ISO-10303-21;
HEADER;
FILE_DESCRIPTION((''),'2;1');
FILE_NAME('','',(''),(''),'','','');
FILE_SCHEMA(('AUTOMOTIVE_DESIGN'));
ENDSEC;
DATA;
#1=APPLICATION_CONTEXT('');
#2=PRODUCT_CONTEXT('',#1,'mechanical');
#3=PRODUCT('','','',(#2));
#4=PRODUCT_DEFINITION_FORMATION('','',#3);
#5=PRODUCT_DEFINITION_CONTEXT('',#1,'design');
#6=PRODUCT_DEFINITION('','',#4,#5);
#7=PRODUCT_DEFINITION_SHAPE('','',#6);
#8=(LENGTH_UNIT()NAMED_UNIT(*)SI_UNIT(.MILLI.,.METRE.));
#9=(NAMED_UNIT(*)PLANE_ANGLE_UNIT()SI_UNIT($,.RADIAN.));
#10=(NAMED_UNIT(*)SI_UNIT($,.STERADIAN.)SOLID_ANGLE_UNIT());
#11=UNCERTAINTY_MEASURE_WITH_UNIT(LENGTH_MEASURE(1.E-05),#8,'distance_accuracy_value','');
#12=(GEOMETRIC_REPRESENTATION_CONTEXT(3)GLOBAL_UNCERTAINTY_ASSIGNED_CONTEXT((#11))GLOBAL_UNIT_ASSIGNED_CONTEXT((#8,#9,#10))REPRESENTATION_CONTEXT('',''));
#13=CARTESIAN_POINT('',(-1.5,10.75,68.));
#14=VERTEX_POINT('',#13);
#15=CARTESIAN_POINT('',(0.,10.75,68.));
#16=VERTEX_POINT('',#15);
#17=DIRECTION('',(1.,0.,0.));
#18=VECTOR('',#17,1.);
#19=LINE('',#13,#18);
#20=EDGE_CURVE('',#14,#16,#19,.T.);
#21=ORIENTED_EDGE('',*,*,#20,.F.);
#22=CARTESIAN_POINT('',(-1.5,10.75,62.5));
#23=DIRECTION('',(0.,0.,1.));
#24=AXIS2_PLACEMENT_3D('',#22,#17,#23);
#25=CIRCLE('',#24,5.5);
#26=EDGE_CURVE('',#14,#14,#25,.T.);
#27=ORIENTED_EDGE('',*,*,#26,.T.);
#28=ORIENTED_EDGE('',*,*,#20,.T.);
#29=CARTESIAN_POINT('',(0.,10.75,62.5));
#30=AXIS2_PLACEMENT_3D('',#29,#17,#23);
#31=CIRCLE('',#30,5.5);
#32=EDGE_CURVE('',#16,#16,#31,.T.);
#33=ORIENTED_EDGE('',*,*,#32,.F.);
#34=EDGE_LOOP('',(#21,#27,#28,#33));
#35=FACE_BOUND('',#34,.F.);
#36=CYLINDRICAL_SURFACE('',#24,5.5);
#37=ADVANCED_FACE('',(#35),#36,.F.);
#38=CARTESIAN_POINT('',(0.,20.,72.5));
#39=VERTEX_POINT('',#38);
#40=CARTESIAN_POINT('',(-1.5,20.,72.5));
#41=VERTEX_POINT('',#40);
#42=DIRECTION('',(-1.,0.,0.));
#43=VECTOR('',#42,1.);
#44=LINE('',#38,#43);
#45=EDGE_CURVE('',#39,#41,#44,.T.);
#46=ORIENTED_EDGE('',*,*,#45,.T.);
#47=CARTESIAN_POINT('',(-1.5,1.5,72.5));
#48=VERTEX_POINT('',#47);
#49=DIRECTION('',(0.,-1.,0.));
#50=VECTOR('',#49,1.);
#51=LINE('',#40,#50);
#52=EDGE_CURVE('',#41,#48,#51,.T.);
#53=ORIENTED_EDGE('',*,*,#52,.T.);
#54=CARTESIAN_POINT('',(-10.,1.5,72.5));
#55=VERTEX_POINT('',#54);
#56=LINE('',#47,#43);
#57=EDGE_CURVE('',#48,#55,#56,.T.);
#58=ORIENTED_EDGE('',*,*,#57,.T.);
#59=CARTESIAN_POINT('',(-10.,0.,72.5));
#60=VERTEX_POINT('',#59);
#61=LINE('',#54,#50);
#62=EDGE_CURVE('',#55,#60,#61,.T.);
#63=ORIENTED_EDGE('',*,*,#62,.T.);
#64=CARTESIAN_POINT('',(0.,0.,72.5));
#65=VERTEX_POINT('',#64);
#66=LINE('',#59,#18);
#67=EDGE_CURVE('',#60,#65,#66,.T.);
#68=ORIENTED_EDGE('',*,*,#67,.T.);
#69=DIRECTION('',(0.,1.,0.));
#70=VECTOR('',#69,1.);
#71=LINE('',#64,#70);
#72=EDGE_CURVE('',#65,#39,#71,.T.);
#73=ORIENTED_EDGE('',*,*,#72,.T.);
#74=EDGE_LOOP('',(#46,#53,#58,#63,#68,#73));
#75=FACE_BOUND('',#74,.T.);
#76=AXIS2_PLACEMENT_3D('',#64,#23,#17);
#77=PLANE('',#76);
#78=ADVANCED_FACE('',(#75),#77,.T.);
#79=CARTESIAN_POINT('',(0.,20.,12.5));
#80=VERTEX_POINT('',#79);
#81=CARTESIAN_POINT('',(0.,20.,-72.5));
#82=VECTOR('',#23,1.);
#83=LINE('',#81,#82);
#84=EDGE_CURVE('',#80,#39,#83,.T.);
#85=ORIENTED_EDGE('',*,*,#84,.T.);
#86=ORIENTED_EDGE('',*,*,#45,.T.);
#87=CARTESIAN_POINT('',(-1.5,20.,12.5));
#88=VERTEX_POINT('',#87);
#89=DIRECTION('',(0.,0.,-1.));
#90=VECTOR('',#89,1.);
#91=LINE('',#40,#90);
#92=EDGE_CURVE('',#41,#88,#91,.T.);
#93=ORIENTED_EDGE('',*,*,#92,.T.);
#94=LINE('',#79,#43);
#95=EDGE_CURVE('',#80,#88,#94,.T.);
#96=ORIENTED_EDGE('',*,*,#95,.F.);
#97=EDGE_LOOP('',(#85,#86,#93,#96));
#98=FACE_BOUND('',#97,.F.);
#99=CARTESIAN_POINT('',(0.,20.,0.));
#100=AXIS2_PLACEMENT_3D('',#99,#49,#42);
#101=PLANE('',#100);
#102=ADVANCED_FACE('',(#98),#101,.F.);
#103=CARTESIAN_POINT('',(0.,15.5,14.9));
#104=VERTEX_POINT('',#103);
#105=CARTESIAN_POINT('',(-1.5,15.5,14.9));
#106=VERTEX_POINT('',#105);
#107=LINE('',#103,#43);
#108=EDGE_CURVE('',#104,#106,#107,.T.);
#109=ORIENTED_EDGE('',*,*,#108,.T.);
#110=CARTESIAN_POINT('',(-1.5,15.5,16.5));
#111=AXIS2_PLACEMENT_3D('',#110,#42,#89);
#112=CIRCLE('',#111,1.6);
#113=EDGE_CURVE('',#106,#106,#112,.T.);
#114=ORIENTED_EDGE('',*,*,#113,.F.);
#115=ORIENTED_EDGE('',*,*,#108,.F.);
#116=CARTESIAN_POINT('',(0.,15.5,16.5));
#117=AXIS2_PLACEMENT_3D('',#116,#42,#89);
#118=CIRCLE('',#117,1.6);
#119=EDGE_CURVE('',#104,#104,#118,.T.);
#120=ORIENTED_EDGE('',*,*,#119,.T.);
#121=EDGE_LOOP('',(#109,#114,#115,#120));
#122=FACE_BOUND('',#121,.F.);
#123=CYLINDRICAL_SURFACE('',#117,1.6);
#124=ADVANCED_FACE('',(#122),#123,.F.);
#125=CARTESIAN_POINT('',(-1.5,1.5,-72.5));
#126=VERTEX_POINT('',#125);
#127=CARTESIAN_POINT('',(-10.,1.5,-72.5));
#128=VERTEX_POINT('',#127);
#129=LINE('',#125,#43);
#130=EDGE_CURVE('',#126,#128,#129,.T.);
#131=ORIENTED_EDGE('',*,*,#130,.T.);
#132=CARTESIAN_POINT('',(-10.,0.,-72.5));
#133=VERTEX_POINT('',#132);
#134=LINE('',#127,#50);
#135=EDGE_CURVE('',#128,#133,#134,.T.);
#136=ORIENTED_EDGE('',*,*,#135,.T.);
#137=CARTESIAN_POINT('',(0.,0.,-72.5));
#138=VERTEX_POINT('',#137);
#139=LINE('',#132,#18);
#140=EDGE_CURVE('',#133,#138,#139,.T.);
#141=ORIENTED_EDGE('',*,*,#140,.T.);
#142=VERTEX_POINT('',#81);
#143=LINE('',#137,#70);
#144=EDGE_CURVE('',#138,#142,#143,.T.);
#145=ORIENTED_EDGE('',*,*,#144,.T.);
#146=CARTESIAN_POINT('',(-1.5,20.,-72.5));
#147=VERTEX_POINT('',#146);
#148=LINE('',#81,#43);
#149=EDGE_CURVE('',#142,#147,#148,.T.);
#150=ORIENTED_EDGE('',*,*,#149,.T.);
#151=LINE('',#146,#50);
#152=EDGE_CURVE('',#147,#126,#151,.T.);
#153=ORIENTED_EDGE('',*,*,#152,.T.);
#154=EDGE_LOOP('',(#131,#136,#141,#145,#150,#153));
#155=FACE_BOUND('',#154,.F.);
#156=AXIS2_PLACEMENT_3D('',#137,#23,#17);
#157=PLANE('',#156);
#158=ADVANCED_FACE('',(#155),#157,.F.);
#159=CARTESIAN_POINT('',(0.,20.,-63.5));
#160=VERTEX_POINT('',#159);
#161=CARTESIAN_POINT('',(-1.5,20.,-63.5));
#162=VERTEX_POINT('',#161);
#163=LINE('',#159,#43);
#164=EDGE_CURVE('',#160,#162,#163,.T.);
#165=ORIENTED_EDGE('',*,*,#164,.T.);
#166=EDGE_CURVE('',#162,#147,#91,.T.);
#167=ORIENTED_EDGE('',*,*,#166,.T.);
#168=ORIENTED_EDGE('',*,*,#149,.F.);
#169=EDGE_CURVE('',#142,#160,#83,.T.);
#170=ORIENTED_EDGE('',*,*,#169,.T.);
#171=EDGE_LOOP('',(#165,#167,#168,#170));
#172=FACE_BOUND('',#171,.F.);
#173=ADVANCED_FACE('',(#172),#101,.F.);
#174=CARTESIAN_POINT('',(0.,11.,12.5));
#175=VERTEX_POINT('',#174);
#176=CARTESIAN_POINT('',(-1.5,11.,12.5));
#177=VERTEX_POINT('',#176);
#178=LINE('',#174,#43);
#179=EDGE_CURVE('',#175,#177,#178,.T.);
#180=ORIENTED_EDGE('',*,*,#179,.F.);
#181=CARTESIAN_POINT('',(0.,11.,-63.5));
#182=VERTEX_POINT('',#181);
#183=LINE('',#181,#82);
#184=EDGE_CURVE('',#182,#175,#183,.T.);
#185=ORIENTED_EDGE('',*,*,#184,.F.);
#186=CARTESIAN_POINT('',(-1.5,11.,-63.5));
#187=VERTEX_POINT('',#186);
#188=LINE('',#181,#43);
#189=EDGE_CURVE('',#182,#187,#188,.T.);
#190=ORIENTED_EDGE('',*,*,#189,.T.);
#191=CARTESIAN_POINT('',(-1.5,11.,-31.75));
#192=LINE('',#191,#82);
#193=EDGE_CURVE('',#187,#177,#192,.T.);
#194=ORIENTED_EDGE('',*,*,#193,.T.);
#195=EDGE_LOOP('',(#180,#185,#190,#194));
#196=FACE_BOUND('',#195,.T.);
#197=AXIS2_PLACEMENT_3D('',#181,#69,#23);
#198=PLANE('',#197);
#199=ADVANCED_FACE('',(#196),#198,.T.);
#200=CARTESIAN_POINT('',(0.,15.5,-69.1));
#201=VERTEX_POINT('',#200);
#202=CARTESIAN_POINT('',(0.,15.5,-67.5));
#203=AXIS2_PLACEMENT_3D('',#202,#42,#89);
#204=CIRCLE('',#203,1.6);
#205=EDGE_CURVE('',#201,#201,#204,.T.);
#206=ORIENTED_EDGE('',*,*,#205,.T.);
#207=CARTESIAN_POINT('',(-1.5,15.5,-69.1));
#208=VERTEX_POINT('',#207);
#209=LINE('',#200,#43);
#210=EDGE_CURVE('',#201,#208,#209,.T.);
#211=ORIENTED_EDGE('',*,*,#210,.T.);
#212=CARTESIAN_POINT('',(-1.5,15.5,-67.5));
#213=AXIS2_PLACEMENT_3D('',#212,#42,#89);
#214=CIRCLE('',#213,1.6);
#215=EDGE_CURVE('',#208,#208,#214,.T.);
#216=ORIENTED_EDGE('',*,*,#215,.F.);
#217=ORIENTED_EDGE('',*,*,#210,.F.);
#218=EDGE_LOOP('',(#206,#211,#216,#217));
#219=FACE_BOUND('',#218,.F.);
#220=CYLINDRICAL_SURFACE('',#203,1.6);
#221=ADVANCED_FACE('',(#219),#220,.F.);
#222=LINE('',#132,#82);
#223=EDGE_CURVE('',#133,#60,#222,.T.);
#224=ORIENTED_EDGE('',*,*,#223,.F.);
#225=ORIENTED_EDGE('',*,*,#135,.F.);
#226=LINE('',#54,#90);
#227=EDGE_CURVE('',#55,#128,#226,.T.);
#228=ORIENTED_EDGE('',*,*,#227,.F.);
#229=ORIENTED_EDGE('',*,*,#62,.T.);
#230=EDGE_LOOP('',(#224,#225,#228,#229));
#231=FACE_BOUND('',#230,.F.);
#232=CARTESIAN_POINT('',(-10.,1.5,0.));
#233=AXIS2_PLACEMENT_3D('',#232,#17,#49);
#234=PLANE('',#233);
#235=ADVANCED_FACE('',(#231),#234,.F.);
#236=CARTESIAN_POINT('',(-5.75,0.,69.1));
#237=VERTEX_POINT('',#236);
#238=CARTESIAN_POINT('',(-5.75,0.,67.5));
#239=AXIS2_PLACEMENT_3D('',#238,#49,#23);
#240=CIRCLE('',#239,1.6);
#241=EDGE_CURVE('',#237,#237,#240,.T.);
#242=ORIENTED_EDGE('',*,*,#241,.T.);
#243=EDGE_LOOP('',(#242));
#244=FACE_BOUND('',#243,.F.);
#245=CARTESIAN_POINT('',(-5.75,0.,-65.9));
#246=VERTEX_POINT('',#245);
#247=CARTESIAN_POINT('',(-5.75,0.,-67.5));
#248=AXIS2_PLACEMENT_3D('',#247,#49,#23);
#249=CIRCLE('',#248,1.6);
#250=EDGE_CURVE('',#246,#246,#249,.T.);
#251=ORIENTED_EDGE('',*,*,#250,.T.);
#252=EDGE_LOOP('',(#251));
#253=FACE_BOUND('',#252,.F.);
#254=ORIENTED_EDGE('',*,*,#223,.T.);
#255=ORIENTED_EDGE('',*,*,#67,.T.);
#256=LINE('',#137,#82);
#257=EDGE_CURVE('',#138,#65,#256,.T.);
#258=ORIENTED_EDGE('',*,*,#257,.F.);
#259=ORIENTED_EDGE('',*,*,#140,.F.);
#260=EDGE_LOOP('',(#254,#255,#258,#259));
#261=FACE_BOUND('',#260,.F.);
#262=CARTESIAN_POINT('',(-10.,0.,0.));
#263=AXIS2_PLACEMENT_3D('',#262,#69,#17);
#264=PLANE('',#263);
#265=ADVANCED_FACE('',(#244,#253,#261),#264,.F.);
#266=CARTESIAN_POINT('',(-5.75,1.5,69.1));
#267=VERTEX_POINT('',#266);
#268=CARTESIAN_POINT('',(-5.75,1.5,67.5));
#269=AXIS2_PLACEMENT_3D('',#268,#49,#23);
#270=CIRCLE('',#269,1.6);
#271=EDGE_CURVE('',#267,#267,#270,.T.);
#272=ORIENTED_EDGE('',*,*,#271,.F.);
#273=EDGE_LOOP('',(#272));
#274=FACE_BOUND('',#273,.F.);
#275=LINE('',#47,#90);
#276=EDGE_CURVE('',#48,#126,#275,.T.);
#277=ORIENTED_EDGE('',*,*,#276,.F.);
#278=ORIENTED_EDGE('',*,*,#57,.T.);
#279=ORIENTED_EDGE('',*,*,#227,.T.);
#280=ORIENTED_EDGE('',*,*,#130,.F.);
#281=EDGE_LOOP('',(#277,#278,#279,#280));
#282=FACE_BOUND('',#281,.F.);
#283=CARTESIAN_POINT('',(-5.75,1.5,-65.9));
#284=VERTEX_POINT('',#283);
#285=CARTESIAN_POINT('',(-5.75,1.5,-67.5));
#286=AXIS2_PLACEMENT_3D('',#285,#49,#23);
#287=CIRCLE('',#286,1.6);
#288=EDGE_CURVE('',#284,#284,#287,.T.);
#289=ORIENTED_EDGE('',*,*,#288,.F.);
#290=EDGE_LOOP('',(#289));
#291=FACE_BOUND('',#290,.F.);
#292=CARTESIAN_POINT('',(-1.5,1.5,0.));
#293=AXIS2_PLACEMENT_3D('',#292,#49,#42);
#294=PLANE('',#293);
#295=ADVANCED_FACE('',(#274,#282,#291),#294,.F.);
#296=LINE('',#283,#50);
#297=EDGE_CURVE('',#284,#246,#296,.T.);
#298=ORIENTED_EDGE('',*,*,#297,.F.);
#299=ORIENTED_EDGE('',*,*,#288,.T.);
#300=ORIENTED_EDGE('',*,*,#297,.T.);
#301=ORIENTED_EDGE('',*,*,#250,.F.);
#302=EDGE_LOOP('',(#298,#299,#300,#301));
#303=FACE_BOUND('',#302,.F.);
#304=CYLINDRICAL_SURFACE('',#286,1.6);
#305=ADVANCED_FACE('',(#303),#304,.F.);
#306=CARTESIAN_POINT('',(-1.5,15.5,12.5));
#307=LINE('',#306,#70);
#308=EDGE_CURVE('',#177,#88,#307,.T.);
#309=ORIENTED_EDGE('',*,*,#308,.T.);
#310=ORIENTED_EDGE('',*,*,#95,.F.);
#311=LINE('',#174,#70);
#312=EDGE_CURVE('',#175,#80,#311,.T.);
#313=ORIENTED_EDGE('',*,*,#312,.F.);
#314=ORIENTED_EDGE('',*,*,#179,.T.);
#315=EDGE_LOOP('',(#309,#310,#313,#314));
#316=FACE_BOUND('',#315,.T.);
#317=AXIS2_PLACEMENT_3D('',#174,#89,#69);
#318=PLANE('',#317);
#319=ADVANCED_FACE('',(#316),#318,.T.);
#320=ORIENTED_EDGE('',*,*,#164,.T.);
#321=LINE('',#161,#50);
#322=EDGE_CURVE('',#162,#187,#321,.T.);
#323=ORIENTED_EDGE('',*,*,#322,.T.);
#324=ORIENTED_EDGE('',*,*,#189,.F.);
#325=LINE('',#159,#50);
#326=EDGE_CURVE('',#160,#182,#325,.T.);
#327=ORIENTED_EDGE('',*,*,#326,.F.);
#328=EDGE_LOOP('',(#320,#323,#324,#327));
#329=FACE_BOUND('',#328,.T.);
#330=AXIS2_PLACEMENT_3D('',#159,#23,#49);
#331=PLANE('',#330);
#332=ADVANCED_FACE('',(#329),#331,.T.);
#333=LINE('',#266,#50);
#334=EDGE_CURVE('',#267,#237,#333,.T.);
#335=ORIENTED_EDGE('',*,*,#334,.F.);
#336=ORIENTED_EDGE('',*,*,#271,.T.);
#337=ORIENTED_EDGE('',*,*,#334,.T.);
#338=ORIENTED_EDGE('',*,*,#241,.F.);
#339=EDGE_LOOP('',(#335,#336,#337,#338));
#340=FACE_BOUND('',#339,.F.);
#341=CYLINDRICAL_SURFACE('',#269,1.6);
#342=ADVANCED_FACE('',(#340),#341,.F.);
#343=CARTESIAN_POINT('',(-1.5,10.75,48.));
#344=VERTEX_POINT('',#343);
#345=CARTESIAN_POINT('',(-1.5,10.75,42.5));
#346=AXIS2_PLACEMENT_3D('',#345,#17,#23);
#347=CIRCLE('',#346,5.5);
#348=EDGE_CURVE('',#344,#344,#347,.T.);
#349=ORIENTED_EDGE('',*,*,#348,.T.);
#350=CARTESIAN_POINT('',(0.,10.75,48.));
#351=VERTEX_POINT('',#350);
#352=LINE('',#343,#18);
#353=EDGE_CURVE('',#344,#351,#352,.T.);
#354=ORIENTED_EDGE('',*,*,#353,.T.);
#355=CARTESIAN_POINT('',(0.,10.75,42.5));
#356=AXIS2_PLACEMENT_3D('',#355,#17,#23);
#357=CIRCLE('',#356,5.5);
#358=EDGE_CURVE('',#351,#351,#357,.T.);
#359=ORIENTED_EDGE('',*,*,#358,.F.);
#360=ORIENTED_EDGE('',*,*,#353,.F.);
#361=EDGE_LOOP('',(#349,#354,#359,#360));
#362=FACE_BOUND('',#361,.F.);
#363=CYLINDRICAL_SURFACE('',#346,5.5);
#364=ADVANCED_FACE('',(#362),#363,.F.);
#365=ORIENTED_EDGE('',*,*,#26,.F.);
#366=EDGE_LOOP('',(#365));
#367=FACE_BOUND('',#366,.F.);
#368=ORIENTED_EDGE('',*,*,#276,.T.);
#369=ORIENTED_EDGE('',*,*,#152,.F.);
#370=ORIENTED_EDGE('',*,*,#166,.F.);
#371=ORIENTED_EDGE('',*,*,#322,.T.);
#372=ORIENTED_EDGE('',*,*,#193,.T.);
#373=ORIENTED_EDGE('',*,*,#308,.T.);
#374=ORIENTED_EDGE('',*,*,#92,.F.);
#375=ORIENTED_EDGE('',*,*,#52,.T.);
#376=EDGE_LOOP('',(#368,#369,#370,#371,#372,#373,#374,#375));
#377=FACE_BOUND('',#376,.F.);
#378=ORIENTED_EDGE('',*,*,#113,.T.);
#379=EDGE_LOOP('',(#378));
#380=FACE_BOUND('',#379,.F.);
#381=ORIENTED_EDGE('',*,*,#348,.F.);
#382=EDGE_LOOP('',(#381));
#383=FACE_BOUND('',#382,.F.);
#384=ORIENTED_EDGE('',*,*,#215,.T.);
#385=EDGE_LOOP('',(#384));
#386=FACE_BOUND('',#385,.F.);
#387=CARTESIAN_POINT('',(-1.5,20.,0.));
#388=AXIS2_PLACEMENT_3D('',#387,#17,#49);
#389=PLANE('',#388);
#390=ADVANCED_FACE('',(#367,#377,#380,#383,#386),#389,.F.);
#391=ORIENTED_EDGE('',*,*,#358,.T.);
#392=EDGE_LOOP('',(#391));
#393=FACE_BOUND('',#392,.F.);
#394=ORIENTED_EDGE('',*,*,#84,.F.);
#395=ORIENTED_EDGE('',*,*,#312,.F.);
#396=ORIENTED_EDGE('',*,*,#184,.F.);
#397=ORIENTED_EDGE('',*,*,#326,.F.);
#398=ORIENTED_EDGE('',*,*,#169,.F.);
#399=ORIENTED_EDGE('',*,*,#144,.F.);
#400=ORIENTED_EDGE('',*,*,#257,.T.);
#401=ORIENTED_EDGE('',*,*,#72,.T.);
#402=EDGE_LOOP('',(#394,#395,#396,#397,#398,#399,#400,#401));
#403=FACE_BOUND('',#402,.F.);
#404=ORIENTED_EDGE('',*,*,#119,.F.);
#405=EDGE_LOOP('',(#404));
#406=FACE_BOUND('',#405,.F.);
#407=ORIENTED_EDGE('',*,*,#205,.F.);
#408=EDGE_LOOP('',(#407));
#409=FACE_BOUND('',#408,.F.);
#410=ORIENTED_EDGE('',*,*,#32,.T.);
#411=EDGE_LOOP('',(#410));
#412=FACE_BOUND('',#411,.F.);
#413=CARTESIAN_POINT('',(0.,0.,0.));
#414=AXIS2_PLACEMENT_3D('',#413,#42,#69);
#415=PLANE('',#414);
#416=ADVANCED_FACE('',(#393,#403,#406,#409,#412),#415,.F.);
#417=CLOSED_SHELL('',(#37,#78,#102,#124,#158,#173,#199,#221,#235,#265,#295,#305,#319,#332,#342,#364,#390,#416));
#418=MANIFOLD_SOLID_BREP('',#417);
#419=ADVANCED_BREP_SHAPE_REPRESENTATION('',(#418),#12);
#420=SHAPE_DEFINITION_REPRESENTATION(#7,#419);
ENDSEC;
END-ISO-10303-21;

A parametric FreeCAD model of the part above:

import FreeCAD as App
import Part
import Sketcher
from FreeCAD import Vector
Q = App.Units.Quantity

doc = App.newDocument("Part")
body = doc.addObject("PartDesign::Body", "Body")

# Sketch on XY plane
sketch1 = body.newObject("Sketcher::SketchObject", "Sketch")
sketch1.AttachmentSupport = (doc.getObject("XY_Plane"), [""])
sketch1.MapMode = "FlatFace"
sketch1.addGeometry(Part.LineSegment(Vector(-10, 1.5, 0), Vector(-10, 0, 0)), False)
sketch1.addGeometry(Part.LineSegment(Vector(-10, 0, 0), Vector(0, 0, 0)), False)
sketch1.addGeometry(Part.LineSegment(Vector(0, 0, 0), Vector(0, 20, 0)), False)
sketch1.addGeometry(Part.LineSegment(Vector(0, 20, 0), Vector(-1.5, 20, 0)), False)
sketch1.addGeometry(Part.LineSegment(Vector(-1.5, 20, 0), Vector(-1.5, 1.5, 0)), False)
sketch1.addGeometry(Part.LineSegment(Vector(-1.5, 1.5, 0), Vector(-10, 1.5, 0)), False)
sketch1.addConstraint(Sketcher.Constraint("Coincident", 0, 2, 1, 1))
sketch1.addConstraint(Sketcher.Constraint("Coincident", 1, 2, 2, 1))
sketch1.addConstraint(Sketcher.Constraint("Coincident", 2, 2, 3, 1))
sketch1.addConstraint(Sketcher.Constraint("Coincident", 3, 2, 4, 1))
sketch1.addConstraint(Sketcher.Constraint("Coincident", 4, 2, 5, 1))
sketch1.addConstraint(Sketcher.Constraint("Coincident", 5, 2, 0, 1))
sketch1.addConstraint(Sketcher.Constraint("Vertical", 0))
sketch1.addConstraint(Sketcher.Constraint("Horizontal", 1))
sketch1.addConstraint(Sketcher.Constraint("Vertical", 2))
sketch1.addConstraint(Sketcher.Constraint("Horizontal", 3))
sketch1.addConstraint(Sketcher.Constraint("Vertical", 4))
sketch1.addConstraint(Sketcher.Constraint("Horizontal", 5))
sketch1.addConstraint(Sketcher.Constraint("Coincident", 1, 2, -1, 1))
sketch1.addConstraint(Sketcher.Constraint("Equal", 3, 0))
sketch1.addConstraint(Sketcher.Constraint("DistanceX", 1, 1, 1, 2, Q("10 mm")))
sketch1.addConstraint(Sketcher.Constraint("DistanceY", 2, 1, 2, 2, Q("20 mm")))
sketch1.addConstraint(Sketcher.Constraint("DistanceX", 3, 2, 3, 1, Q("1.5 mm")))
pad1 = body.newObject("PartDesign::Pad", "Pad")
pad1.Profile = sketch1
pad1.Length = 145
pad1.Midplane = True

# Sketch on XZ plane
sketch2 = body.newObject("Sketcher::SketchObject", "Sketch001")
sketch2.AttachmentSupport = (doc.getObject("XZ_Plane"), [""])
sketch2.MapMode = "FlatFace"
sketch2.AttachmentOffset = App.Placement(Vector(0, 0, -1.5), App.Rotation())
sketch2.addGeometry(Part.Circle(Vector(-5.8, -67.5, 0), Vector(0, 0, 1), 1.6), False)
sketch2.addGeometry(Part.Circle(Vector(-5.8, 67.5, 0), Vector(0, 0, 1), 1.6), False)
sketch2.addConstraint(Sketcher.Constraint("Equal", 0, 1))
sketch2.addConstraint(Sketcher.Constraint("Symmetric", 0, 3, 1, 3, -1))
sketch2.addConstraint(Sketcher.Constraint("Diameter", 0, Q("3.2 mm")))
sketch2.addConstraint(Sketcher.Constraint("DistanceY", 0, 3, 1, 3, Q("135 mm")))
sketch2.addConstraint(Sketcher.Constraint("DistanceX", 0, 3, -1, 1, Q("5.75 mm")))
doc.recompute()
hole = body.newObject("PartDesign::Hole", "Hole")
hole.Profile = sketch2
hole.ThreadType = "None"
hole.Diameter = 3.2
hole.DepthType = "ThroughAll"
hole.Reversed = True

# Sketch on YZ plane
sketch3 = body.newObject("Sketcher::SketchObject", "Sketch002")
sketch3.AttachmentSupport = (doc.getObject("YZ_Plane"), [""])
sketch3.MapMode = "FlatFace"
sketch3.AttachmentOffset = App.Placement(Vector(0, 0, -1.5), App.Rotation())
sketch3.addGeometry(Part.Circle(Vector(11, 62, 0), Vector(0, 0, 1), 6), False)
sketch3.addGeometry(Part.Circle(Vector(11, 42, 0), Vector(0, 0, 1), 6), False)
sketch3.addConstraint(Sketcher.Constraint("Equal", 0, 1))
sketch3.addConstraint(Sketcher.Constraint("Vertical", 0, 3, 1, 3))
sketch3.addConstraint(Sketcher.Constraint("Diameter", 0, Q("11 mm")))
sketch3.addConstraint(Sketcher.Constraint("DistanceY", 1, 3, 0, 3, Q("20 mm")))
sketch3.addConstraint(Sketcher.Constraint("DistanceY", -1, 1, 0, 3, Q("62.5 mm")))
sketch3.addConstraint(Sketcher.Constraint("DistanceX", -1, 1, 0, 3, Q("10.75 mm")))
doc.recompute()
hole2 = body.newObject("PartDesign::Hole", "Hole001")
hole2.Profile = sketch3
hole2.ThreadType = "None"
hole2.Diameter = 11
hole2.DepthType = "ThroughAll"
hole2.Reversed = True

# Sketch on YZ plane
sketch4 = body.newObject("Sketcher::SketchObject", "Sketch003")
sketch4.AttachmentSupport = (doc.getObject("YZ_Plane"), [""])
sketch4.MapMode = "FlatFace"
sketch4.addGeometry(Part.LineSegment(Vector(11, -64, 0), Vector(20, -64, 0)), False)
sketch4.addGeometry(Part.LineSegment(Vector(20, -64, 0), Vector(20, 12, 0)), False)
sketch4.addGeometry(Part.LineSegment(Vector(20, 12, 0), Vector(11, 12, 0)), False)
sketch4.addGeometry(Part.LineSegment(Vector(11, 12, 0), Vector(11, -64, 0)), False)
sketch4.addConstraint(Sketcher.Constraint("Coincident", 0, 2, 1, 1))
sketch4.addConstraint(Sketcher.Constraint("Coincident", 1, 2, 2, 1))
sketch4.addConstraint(Sketcher.Constraint("Coincident", 2, 2, 3, 1))
sketch4.addConstraint(Sketcher.Constraint("Coincident", 3, 2, 0, 1))
sketch4.addConstraint(Sketcher.Constraint("Horizontal", 0))
sketch4.addConstraint(Sketcher.Constraint("Vertical", 1))
sketch4.addConstraint(Sketcher.Constraint("Horizontal", 2))
sketch4.addConstraint(Sketcher.Constraint("Vertical", 3))
sketch4.addConstraint(Sketcher.Constraint("DistanceX", 0, 1, 0, 2, Q("9 mm")))
sketch4.addConstraint(Sketcher.Constraint("DistanceY", 1, 1, 1, 2, Q("76 mm")))
sketch4.addConstraint(Sketcher.Constraint("DistanceX", -1, 1, 0, 2, Q("20 mm")))
sketch4.addConstraint(Sketcher.Constraint("DistanceY", 0, 2, -1, 1, Q("63.5 mm")))
pocket1 = body.newObject("PartDesign::Pocket", "Pocket")
pocket1.Profile = sketch4
pocket1.Type = "ThroughAll"

# Sketch on YZ plane
sketch5 = body.newObject("Sketcher::SketchObject", "Sketch004")
sketch5.AttachmentSupport = (doc.getObject("YZ_Plane"), [""])
sketch5.MapMode = "FlatFace"
sketch5.addGeometry(Part.Circle(Vector(15.5, 16.5, 0), Vector(0, 0, 1), 1.6), False)
sketch5.addGeometry(Part.Circle(Vector(15.5, -67.5, 0), Vector(0, 0, 1), 1.6), False)
sketch5.addConstraint(Sketcher.Constraint("Equal", 0, 1))
sketch5.addConstraint(Sketcher.Constraint("Vertical", 0, 3, 1, 3))
sketch5.addConstraint(Sketcher.Constraint("Diameter", 0, Q("3.2 mm")))
sketch5.addConstraint(Sketcher.Constraint("DistanceY", 1, 3, 0, 3, Q("84 mm")))
sketch5.addConstraint(Sketcher.Constraint("DistanceX", -1, 1, 0, 3, Q("15.5 mm")))
sketch5.addConstraint(Sketcher.Constraint("DistanceY", -1, 1, 0, 3, Q("16.5 mm")))
doc.recompute()
hole3 = body.newObject("PartDesign::Hole", "Hole002")
hole3.Profile = sketch5
hole3.ThreadType = "None"
hole3.Diameter = 3.2
hole3.DepthType = "ThroughAll"

doc.recompute()
